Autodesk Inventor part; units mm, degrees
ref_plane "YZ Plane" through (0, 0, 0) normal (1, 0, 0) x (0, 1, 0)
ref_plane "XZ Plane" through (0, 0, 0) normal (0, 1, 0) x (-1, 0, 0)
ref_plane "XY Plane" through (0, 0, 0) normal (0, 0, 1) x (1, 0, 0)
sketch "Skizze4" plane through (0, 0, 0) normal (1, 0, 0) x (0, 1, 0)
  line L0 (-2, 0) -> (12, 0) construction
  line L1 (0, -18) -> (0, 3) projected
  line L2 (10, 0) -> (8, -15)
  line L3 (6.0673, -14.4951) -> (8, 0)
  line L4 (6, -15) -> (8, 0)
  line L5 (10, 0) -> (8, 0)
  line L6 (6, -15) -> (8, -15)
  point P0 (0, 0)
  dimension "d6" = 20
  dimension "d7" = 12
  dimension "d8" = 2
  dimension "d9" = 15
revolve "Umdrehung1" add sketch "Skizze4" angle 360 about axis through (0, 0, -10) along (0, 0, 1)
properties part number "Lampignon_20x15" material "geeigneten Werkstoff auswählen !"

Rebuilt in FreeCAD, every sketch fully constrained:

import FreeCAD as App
import Part
import Sketcher
from FreeCAD import Vector
Q = App.Units.Quantity


def add_polygon(sketch, points):
    """Adds a closed chain of lines whose ends are joined by coincident constraints."""
    first, n = sketch.GeometryCount, len(points)
    for a, b in zip(points, points[1:] + points[:1]):
        sketch.addGeometry(Part.LineSegment(App.Vector(*a, 0), App.Vector(*b, 0)), False)
    for i in range(n):
        sketch.addConstraint(Sketcher.Constraint("Coincident", first + i, 2, first + (i + 1) % n, 1))

doc = App.newDocument("Part")
body = doc.addObject("PartDesign::Body", "Body")

sketch1 = body.newObject("Sketcher::SketchObject", "Sketch")
sketch1.AttachmentSupport = (doc.getObject("YZ_Plane"), [""])
sketch1.MapMode = "FlatFace"
add_polygon(sketch1, [(8, -15), (10, 0), (8, 0), (6.1, -14.5), (6, -15)])
sketch1.addConstraint([
    Sketcher.Constraint("Horizontal", 1),
    Sketcher.Constraint("Horizontal", 4),
    Sketcher.Constraint("PointOnObject", 0, 2, -1),
    Sketcher.Constraint("Parallel", 0, 2),
    Sketcher.Constraint("Parallel", 2, 3),
    Sketcher.Constraint("Vertical", 1, 2, 4, 2),
    Sketcher.Constraint("DistanceX", 1, 2, 1, 1, Q("2 mm")),
    Sketcher.Constraint("DistanceY", 3, 2, -1, 1, Q("15 mm")),
    Sketcher.Constraint("DistanceX", -1, 1, 0, 2, Q("10 mm")),
    Sketcher.Constraint("DistanceY", 2, 2, -1, 1, Q("14.495 mm")),
])
revolution = body.newObject("PartDesign::Revolution", "Revolution")
revolution.Profile = sketch1
revolution.ReferenceAxis = (sketch1, ["V_Axis"])
revolution.Angle = 360

doc.recompute()
